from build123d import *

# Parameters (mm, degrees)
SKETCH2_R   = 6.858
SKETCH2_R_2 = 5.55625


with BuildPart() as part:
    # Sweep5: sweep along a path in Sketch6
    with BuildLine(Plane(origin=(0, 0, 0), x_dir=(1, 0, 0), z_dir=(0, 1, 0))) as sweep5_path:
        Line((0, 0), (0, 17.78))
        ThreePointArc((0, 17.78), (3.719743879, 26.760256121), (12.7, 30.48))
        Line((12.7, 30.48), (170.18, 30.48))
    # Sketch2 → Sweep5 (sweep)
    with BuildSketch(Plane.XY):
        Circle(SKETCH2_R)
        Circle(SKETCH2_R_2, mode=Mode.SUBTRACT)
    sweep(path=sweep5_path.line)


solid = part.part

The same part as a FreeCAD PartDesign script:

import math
import FreeCAD as App
import Part
import Sketcher
Q = App.Units.Quantity

doc = App.newDocument("Part")
params = doc.addObject("Spreadsheet::Sheet", "Params")
for row, (alias, value) in enumerate([
    ("sketch1_diameter", "0.54 in"),
    ("sketch1_diameter2", "0.4375 in"),
    ("sketch2_radius", "0.5 in"),
    ("sketch2_width", "6.2 in"),
    ("sketch2_height", "0.7 in"),
], start=1):
    params.set(f"A{row}", alias)
    params.set(f"B{row}", "=" + value)
    params.setAlias(f"B{row}", alias)

body = doc.addObject("PartDesign::Body", "Body")

# Sketch on XY plane
sketch1 = doc.addObject("Sketcher::SketchObject", "Sketch")
body.addObject(sketch1)
sketch1.AttachmentSupport = (doc.XY_Plane, [""])
sketch1.MapMode = "FlatFace"
sketch1.addGeometry([
    Part.Circle(App.Vector(0, 0, 0), App.Vector(0, 0, 1), 7),
    Part.Circle(App.Vector(0, 0, 0), App.Vector(0, 0, 1), 6),
], False)
sketch1.addConstraint([
    Sketcher.Constraint("Coincident", 0, 3, -1, 1),
    Sketcher.Constraint("Coincident", 1, 3, -1, 1),
    Sketcher.Constraint("Diameter", 0, Q("0.54 in")),
    Sketcher.Constraint("Diameter", 1, Q("0.4375 in")),
])
sketch1.setExpression("Constraints[2]", "Params.sketch1_diameter")
sketch1.setExpression("Constraints[3]", "Params.sketch1_diameter2")

# Sketch on XZ plane
sketch2 = doc.addObject("Sketcher::SketchObject", "Sketch001")
body.addObject(sketch2)
sketch2.AttachmentSupport = (doc.XZ_Plane, [""])
sketch2.MapMode = "FlatFace"
sketch2.addGeometry([
    Part.LineSegment(App.Vector(0, 0, 0), App.Vector(0, -18, 0)),
    Part.ArcOfCircle(Part.Circle(App.Vector(13, -18, 0), App.Vector(0, 0, 1), 13), math.radians(180), math.radians(270)),
    Part.LineSegment(App.Vector(13, -30, 0), App.Vector(170, -30, 0)),
], False)
sketch2.addConstraint([
    Sketcher.Constraint("Tangent", 0, 2, 1, 1),
    Sketcher.Constraint("Tangent", 1, 2, 2, 1),
    Sketcher.Constraint("Vertical", 0),
    Sketcher.Constraint("Horizontal", 2),
    Sketcher.Constraint("Coincident", 0, 1, -1, 1),
    Sketcher.Constraint("Radius", 1, Q("0.5 in")),
    Sketcher.Constraint("DistanceX", 2, 1, 2, 2, Q("6.2 in")),
    Sketcher.Constraint("DistanceY", 0, 2, 0, 1, Q("0.7 in")),
])
sketch2.setExpression("Constraints[5]", "Params.sketch2_radius")
sketch2.setExpression("Constraints[6]", "Params.sketch2_width")
sketch2.setExpression("Constraints[7]", "Params.sketch2_height")
doc.recompute()

additivepipe = doc.addObject("PartDesign::AdditivePipe", "AdditivePipe")
body.addObject(additivepipe)
additivepipe.Profile = sketch1
additivepipe.Spine = (sketch2, ["Edge1", "Edge2", "Edge3"])

doc.recompute()
